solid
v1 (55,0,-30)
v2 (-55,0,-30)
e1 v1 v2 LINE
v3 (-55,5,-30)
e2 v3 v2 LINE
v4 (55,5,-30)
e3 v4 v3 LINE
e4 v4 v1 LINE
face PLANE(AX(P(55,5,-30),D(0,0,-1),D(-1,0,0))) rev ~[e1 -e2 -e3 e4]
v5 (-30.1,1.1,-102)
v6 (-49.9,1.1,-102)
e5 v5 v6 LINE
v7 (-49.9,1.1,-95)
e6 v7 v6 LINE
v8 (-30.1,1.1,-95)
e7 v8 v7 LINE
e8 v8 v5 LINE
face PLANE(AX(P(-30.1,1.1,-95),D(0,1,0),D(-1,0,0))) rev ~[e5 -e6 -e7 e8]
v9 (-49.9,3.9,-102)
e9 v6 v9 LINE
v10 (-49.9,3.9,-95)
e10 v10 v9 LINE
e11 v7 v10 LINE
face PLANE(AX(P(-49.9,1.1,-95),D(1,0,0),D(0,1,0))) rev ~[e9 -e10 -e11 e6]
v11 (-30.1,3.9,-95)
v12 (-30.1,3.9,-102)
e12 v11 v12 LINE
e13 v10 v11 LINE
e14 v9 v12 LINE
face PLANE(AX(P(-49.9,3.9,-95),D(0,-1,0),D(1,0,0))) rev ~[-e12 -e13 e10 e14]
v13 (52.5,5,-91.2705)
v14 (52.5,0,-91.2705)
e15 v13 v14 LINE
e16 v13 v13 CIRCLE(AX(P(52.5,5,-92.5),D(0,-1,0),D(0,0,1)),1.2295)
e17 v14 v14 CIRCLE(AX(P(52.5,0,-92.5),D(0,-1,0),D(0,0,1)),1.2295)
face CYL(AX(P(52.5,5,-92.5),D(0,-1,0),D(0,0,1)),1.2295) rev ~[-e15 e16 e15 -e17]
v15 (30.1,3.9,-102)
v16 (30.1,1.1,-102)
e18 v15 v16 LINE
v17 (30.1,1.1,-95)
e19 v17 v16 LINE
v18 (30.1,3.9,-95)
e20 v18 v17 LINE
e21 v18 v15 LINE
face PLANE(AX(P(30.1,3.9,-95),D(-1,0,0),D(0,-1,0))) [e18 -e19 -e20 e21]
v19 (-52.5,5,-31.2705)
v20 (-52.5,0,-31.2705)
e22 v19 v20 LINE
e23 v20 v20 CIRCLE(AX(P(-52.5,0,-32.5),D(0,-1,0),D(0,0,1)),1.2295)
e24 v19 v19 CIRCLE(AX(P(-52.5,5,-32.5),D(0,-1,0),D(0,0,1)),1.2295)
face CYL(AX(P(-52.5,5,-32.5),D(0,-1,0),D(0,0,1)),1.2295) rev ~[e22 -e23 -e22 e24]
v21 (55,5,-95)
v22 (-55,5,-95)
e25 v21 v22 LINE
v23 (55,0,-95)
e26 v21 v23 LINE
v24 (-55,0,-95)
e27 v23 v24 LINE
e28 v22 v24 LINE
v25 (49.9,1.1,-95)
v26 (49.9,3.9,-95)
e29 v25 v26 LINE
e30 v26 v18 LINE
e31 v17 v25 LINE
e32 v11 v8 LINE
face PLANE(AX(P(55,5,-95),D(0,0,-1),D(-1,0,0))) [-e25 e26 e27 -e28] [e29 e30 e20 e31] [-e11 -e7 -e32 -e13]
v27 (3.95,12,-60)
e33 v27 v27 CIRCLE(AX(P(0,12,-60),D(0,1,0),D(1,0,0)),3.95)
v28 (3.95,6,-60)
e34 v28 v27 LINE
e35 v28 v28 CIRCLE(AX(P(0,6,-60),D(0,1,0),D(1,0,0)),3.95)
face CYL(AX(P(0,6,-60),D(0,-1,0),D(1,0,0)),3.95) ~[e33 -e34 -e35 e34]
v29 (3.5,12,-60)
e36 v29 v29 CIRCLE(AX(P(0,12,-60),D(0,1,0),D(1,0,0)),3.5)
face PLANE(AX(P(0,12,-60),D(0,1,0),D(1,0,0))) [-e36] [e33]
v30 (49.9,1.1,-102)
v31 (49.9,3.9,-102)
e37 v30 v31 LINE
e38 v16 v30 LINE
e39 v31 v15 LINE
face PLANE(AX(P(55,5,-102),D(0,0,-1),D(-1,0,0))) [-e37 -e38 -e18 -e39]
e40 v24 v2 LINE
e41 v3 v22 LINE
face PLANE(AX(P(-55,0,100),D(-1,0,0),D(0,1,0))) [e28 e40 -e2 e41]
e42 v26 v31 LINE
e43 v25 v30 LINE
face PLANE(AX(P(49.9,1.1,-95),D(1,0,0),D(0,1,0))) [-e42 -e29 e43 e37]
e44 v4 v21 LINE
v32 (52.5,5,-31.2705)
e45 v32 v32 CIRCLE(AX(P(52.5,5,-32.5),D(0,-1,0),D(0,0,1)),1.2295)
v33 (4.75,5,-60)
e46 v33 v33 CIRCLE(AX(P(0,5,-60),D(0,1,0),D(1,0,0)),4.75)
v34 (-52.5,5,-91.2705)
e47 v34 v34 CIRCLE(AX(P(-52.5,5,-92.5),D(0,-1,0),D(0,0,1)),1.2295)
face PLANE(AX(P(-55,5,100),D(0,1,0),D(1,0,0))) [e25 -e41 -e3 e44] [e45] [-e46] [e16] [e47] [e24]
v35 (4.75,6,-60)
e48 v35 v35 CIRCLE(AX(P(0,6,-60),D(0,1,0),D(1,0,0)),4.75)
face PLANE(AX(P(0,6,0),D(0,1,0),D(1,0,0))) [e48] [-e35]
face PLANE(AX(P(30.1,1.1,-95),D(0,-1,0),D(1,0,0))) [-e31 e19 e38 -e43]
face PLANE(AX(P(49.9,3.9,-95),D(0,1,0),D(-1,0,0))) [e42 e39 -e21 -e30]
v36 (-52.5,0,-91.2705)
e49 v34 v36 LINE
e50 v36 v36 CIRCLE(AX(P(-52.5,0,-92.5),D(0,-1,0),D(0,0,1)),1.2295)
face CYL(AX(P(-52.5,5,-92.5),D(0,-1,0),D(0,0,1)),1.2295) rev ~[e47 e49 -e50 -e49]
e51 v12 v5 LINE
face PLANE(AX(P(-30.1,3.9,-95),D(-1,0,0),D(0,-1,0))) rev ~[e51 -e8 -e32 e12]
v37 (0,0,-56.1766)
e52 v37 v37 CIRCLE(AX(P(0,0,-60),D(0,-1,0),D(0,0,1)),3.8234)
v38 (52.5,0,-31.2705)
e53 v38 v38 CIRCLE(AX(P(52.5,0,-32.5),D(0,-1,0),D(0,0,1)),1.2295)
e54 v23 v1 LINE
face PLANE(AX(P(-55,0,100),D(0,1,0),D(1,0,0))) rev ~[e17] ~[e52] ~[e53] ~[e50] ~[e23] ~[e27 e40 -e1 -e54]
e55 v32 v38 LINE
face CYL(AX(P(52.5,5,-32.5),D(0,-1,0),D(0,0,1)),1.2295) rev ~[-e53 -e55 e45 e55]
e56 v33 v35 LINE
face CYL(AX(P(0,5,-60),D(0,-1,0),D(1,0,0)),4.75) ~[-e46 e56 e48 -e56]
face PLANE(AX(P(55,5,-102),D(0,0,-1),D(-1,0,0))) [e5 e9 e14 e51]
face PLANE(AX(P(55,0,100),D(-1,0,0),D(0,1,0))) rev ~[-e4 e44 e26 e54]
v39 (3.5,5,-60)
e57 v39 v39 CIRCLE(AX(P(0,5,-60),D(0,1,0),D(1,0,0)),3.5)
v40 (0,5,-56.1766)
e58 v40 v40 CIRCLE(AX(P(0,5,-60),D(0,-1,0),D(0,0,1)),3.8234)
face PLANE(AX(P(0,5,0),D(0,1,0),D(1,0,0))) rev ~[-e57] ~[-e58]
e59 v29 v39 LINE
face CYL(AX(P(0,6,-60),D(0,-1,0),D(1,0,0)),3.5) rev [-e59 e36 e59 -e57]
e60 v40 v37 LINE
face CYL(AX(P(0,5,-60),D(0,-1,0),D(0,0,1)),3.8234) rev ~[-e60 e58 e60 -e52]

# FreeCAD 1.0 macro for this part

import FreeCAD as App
import Part
import Sketcher
from FreeCAD import Vector
Q = App.Units.Quantity


def add_polygon(sketch, points):
    """Adds a closed chain of lines whose ends are joined by coincident constraints."""
    first, n = sketch.GeometryCount, len(points)
    for a, b in zip(points, points[1:] + points[:1]):
        sketch.addGeometry(Part.LineSegment(App.Vector(*a, 0), App.Vector(*b, 0)), False)
    for i in range(n):
        sketch.addConstraint(Sketcher.Constraint("Coincident", first + i, 2, first + (i + 1) % n, 1))

doc = App.newDocument("Part")
body = doc.addObject("PartDesign::Body", "Body")

# Sketch on XZ plane
sketch1 = doc.addObject("Sketcher::SketchObject", "Sketch")
body.addObject(sketch1)
sketch1.AttachmentSupport = (doc.XZ_Plane, [""])
sketch1.MapMode = "FlatFace"
add_polygon(sketch1, [(-55, 100), (55, 100), (55, -100), (-55, -100)])  # lines 0-3
sketch1.addConstraint(Sketcher.Constraint("Horizontal", 0))
sketch1.addConstraint(Sketcher.Constraint("Vertical", 1))
sketch1.addConstraint(Sketcher.Constraint("Horizontal", 2))
sketch1.addConstraint(Sketcher.Constraint("Vertical", 3))
sketch1.addConstraint(Sketcher.Constraint("Symmetric", 0, 2, 2, 2, -1, 1))
sketch1.addConstraint(Sketcher.Constraint("DistanceX", 0, 1, 0, 2, Q("110 mm")))
sketch1.addConstraint(Sketcher.Constraint("DistanceY", 1, 2, 1, 1, Q("200 mm")))
pad1 = doc.addObject("PartDesign::Pad", "Pad")
body.addObject(pad1)
pad1.Profile = sketch1
pad1.Length = 5
pad1.Reversed = True

# Sketch on XZ plane
sketch2 = doc.addObject("Sketcher::SketchObject", "Sketch001")
body.addObject(sketch2)
sketch2.AttachmentSupport = (doc.XZ_Plane, [""])
sketch2.MapMode = "FlatFace"
sketch2.AttachmentOffset = App.Placement(Vector(0, 0, -5), App.Rotation())
sketch2.addGeometry(Part.Circle(Vector(0, -60, 0), Vector(0, 0, 1), 3.8), False)
sketch2.addConstraint(Sketcher.Constraint("PointOnObject", 0, 3, -2))
sketch2.addConstraint(Sketcher.Constraint("DistanceY", 0, 3, -1, 1, Q("60 mm")))
sketch2.addConstraint(Sketcher.Constraint("Diameter", 0, Q("7.6468 mm")))
doc.recompute()
hole = doc.addObject("PartDesign::Hole", "Hole")
body.addObject(hole)
hole.Profile = sketch2
hole.ThreadType = "None"
hole.Diameter = 7.6468
hole.DepthType = "ThroughAll"
hole.Reversed = True

# Sketch on XZ plane
sketch3 = doc.addObject("Sketcher::SketchObject", "Sketch002")
body.addObject(sketch3)
sketch3.AttachmentSupport = (doc.XZ_Plane, [""])
sketch3.MapMode = "FlatFace"
sketch3.AttachmentOffset = App.Placement(Vector(0, 0, -5), App.Rotation())
sketch3.addGeometry(Part.Circle(Vector(-7.5, 70, 0), Vector(0, 0, 1), 1.2), False)
sketch3.addGeometry(Part.Circle(Vector(-37.5, 70, 0), Vector(0, 0, 1), 1.2), False)
sketch3.addGeometry(Part.Circle(Vector(-37.5, 55, 0), Vector(0, 0, 1), 1.2), False)
sketch3.addGeometry(Part.Circle(Vector(-7.5, 55, 0), Vector(0, 0, 1), 1.2), False)
sketch3.addConstraint(Sketcher.Constraint("Equal", 0, 1))
sketch3.addConstraint(Sketcher.Constraint("Equal", 1, 2))
sketch3.addConstraint(Sketcher.Constraint("Equal", 2, 3))
sketch3.addConstraint(Sketcher.Constraint("Horizontal", 0, 3, 1, 3))
sketch3.addConstraint(Sketcher.Constraint("Horizontal", 2, 3, 3, 3))
sketch3.addConstraint(Sketcher.Constraint("Vertical", 1, 3, 2, 3))
sketch3.addConstraint(Sketcher.Constraint("Vertical", 0, 3, 3, 3))
sketch3.addConstraint(Sketcher.Constraint("Diameter", 0, Q("2.459 mm")))
sketch3.addConstraint(Sketcher.Constraint("DistanceY", -1, 1, 0, 3, Q("70 mm")))
sketch3.addConstraint(Sketcher.Constraint("DistanceY", -1, 1, 2, 3, Q("55 mm")))
sketch3.addConstraint(Sketcher.Constraint("DistanceX", 1, 3, 0, 3, Q("30 mm")))
sketch3.addConstraint(Sketcher.Constraint("DistanceX", 0, 3, -1, 1, Q("7.5 mm")))
doc.recompute()
hole2 = doc.addObject("PartDesign::Hole", "Hole001")
body.addObject(hole2)
hole2.Profile = sketch3
hole2.ThreadType = "None"
hole2.Diameter = 2.459
hole2.DepthType = "ThroughAll"
hole2.Reversed = True

# Sketch on XY plane
sketch4 = doc.addObject("Sketcher::SketchObject", "Sketch003")
body.addObject(sketch4)
sketch4.AttachmentSupport = (doc.XY_Plane, [""])
sketch4.MapMode = "FlatFace"
sketch4.AttachmentOffset = App.Placement(Vector(0, 0, 100), App.Rotation())
add_polygon(sketch4, [(-55, 5), (-55, 0), (55, 0), (55, 5)])  # lines 0-3
sketch4.addConstraint(Sketcher.Constraint("Vertical", 0))
sketch4.addConstraint(Sketcher.Constraint("Horizontal", 1))
sketch4.addConstraint(Sketcher.Constraint("Vertical", 2))
sketch4.addConstraint(Sketcher.Constraint("Horizontal", 3))
sketch4.addConstraint(Sketcher.Constraint("Symmetric", 0, 2, 1, 2, -1, 1))
sketch4.addConstraint(Sketcher.Constraint("DistanceX", 1, 1, 1, 2, Q("110 mm")))
sketch4.addConstraint(Sketcher.Constraint("DistanceY", 0, 2, 0, 1, Q("5 mm")))
pad2 = doc.addObject("PartDesign::Pad", "Pad001")
body.addObject(pad2)
pad2.Profile = sketch4
pad2.Length = 40

# Sketch on XZ plane
sketch5 = doc.addObject("Sketcher::SketchObject", "Sketch004")
body.addObject(sketch5)
sketch5.AttachmentSupport = (doc.XZ_Plane, [""])
sketch5.MapMode = "FlatFace"
sketch5.AttachmentOffset = App.Placement(Vector(0, 0, -5), App.Rotation())
sketch5.addGeometry(Part.Circle(Vector(0, -60, 0), Vector(0, 0, 1), 4.8), False)
sketch5.addGeometry(Part.Circle(Vector(0, -60, 0), Vector(0, 0, 1), 3.5), False)
sketch5.addConstraint(Sketcher.Constraint("Coincident", 1, 3, 0, 3))
sketch5.addConstraint(Sketcher.Constraint("PointOnObject", 0, 3, -2))
sketch5.addConstraint(Sketcher.Constraint("Diameter", 1, Q("7 mm")))
sketch5.addConstraint(Sketcher.Constraint("Diameter", 0, Q("9.5 mm")))
sketch5.addConstraint(Sketcher.Constraint("DistanceY", 0, 3, -1, 1, Q("60 mm")))
pad3 = doc.addObject("PartDesign::Pad", "Pad002")
body.addObject(pad3)
pad3.Profile = sketch5
pad3.Length = 1
pad3.Reversed = True

# Sketch on XZ plane
sketch6 = doc.addObject("Sketcher::SketchObject", "Sketch005")
body.addObject(sketch6)
sketch6.AttachmentSupport = (doc.XZ_Plane, [""])
sketch6.MapMode = "FlatFace"
sketch6.AttachmentOffset = App.Placement(Vector(0, 0, -5), App.Rotation())
add_polygon(sketch6, [(55, -30), (-55, -30), (-55, 140), (55, 140)])  # lines 0-3
sketch6.addConstraint(Sketcher.Constraint("Horizontal", 0))
sketch6.addConstraint(Sketcher.Constraint("Vertical", 1))
sketch6.addConstraint(Sketcher.Constraint("Horizontal", 2))
sketch6.addConstraint(Sketcher.Constraint("Vertical", 3))
sketch6.addConstraint(Sketcher.Constraint("DistanceY", 1, 1, 1, 2, Q("170 mm")))
sketch6.addConstraint(Sketcher.Constraint("DistanceX", 0, 2, 0, 1, Q("110 mm")))
sketch6.addConstraint(Sketcher.Constraint("DistanceX", 0, 2, -1, 1, Q("55 mm")))
sketch6.addConstraint(Sketcher.Constraint("DistanceY", 0, 2, -1, 1, Q("30 mm")))
pocket1 = doc.addObject("PartDesign::Pocket", "Pocket")
body.addObject(pocket1)
pocket1.Profile = sketch6
pocket1.Length = 10
pocket1.Reversed = True

# Sketch on XZ plane
sketch7 = doc.addObject("Sketcher::SketchObject", "Sketch006")
body.addObject(sketch7)
sketch7.AttachmentSupport = (doc.XZ_Plane, [""])
sketch7.MapMode = "FlatFace"
sketch7.AttachmentOffset = App.Placement(Vector(0, 0, -5), App.Rotation())
sketch7.addGeometry(Part.Circle(Vector(-52.5, -32.5, 0), Vector(0, 0, 1), 1.2), False)
sketch7.addGeometry(Part.Circle(Vector(52.5, -32.5, 0), Vector(0, 0, 1), 1.2), False)
sketch7.addConstraint(Sketcher.Constraint("Equal", 0, 1))
sketch7.addConstraint(Sketcher.Constraint("Symmetric", 0, 3, 1, 3, -2))
sketch7.addConstraint(Sketcher.Constraint("Diameter", 0, Q("2.459 mm")))
sketch7.addConstraint(Sketcher.Constraint("DistanceX", 0, 3, 1, 3, Q("105 mm")))
sketch7.addConstraint(Sketcher.Constraint("DistanceY", 0, 3, -1, 1, Q("32.5 mm")))
doc.recompute()
hole3 = doc.addObject("PartDesign::Hole", "Hole002")
body.addObject(hole3)
hole3.Profile = sketch7
hole3.ThreadType = "None"
hole3.Diameter = 2.459
hole3.DepthType = "ThroughAll"
hole3.Reversed = True

# Sketch on XZ plane
sketch8 = doc.addObject("Sketcher::SketchObject", "Sketch007")
body.addObject(sketch8)
sketch8.AttachmentSupport = (doc.XZ_Plane, [""])
sketch8.MapMode = "FlatFace"
sketch8.AttachmentOffset = App.Placement(Vector(0, 0, -5), App.Rotation())
add_polygon(sketch8, [(55, -95), (55, -100), (-55, -100), (-55, -95)])  # lines 0-3
sketch8.addConstraint(Sketcher.Constraint("Vertical", 0))
sketch8.addConstraint(Sketcher.Constraint("Horizontal", 1))
sketch8.addConstraint(Sketcher.Constraint("Vertical", 2))
sketch8.addConstraint(Sketcher.Constraint("Horizontal", 3))
sketch8.addConstraint(Sketcher.Constraint("DistanceY", 0, 2, 0, 1, Q("5 mm")))
sketch8.addConstraint(Sketcher.Constraint("DistanceX", 1, 2, 1, 1, Q("110 mm")))
sketch8.addConstraint(Sketcher.Constraint("DistanceX", -1, 1, 0, 2, Q("55 mm")))
sketch8.addConstraint(Sketcher.Constraint("DistanceY", 0, 2, -1, 1, Q("100 mm")))
pocket2 = doc.addObject("PartDesign::Pocket", "Pocket001")
body.addObject(pocket2)
pocket2.Profile = sketch8
pocket2.Length = 10
pocket2.Reversed = True

# Sketch on XZ plane
sketch9 = doc.addObject("Sketcher::SketchObject", "Sketch008")
body.addObject(sketch9)
sketch9.AttachmentSupport = (doc.XZ_Plane, [""])
sketch9.MapMode = "FlatFace"
sketch9.AttachmentOffset = App.Placement(Vector(0, 0, -5), App.Rotation())
sketch9.addGeometry(Part.Circle(Vector(-52.5, -92.5, 0), Vector(0, 0, 1), 1.2), False)
sketch9.addGeometry(Part.Circle(Vector(52.5, -92.5, 0), Vector(0, 0, 1), 1.2), False)
sketch9.addConstraint(Sketcher.Constraint("Equal", 0, 1))
sketch9.addConstraint(Sketcher.Constraint("Symmetric", 0, 3, 1, 3, -2))
sketch9.addConstraint(Sketcher.Constraint("Diameter", 0, Q("2.459 mm")))
sketch9.addConstraint(Sketcher.Constraint("DistanceX", 0, 3, 1, 3, Q("105 mm")))
sketch9.addConstraint(Sketcher.Constraint("DistanceY", 0, 3, -1, 1, Q("92.5 mm")))
doc.recompute()
hole4 = doc.addObject("PartDesign::Hole", "Hole003")
body.addObject(hole4)
hole4.Profile = sketch9
hole4.ThreadType = "None"
hole4.Diameter = 2.459
hole4.DepthType = "ThroughAll"
hole4.Reversed = True

# Sketch on XY plane
sketch10 = doc.addObject("Sketcher::SketchObject", "Sketch009")
body.addObject(sketch10)
sketch10.AttachmentSupport = (doc.XY_Plane, [""])
sketch10.MapMode = "FlatFace"
sketch10.AttachmentOffset = App.Placement(Vector(0, 0, -95), App.Rotation())
add_polygon(sketch10, [(-49.9, 1.1), (-49.9, 3.9), (-30.1, 3.9), (-30.1, 1.1)])  # lines 0-3
add_polygon(sketch10, [(30.1, 3.9), (49.9, 3.9), (49.9, 1.1), (30.1, 1.1)])  # lines 4-7
sketch10.addConstraint(Sketcher.Constraint("Vertical", 0))
sketch10.addConstraint(Sketcher.Constraint("Horizontal", 1))
sketch10.addConstraint(Sketcher.Constraint("Vertical", 2))
sketch10.addConstraint(Sketcher.Constraint("Horizontal", 3))
sketch10.addConstraint(Sketcher.Constraint("Horizontal", 4))
sketch10.addConstraint(Sketcher.Constraint("Vertical", 5))
sketch10.addConstraint(Sketcher.Constraint("Horizontal", 6))
sketch10.addConstraint(Sketcher.Constraint("Vertical", 7))
sketch10.addConstraint(Sketcher.Constraint("Symmetric", 0, 2, 4, 2, -2))
sketch10.addConstraint(Sketcher.Constraint("Symmetric", 2, 2, 6, 2, -2))
sketch10.addConstraint(Sketcher.Constraint("DistanceX", 1, 1, 1, 2, Q("19.8 mm")))
sketch10.addConstraint(Sketcher.Constraint("DistanceY", 0, 1, 0, 2, Q("2.8 mm")))
sketch10.addConstraint(Sketcher.Constraint("DistanceY", -1, 1, 2, 2, Q("1.1 mm")))
sketch10.addConstraint(Sketcher.Constraint("DistanceX", 1, 2, 4, 2, Q("80 mm")))
pad4 = doc.addObject("PartDesign::Pad", "Pad003")
body.addObject(pad4)
pad4.Profile = sketch10
pad4.Length = 7
pad4.Reversed = True

# Sketch on XZ plane
sketch11 = doc.addObject("Sketcher::SketchObject", "Sketch010")
body.addObject(sketch11)
sketch11.AttachmentSupport = (doc.XZ_Plane, [""])
sketch11.MapMode = "FlatFace"
sketch11.AttachmentOffset = App.Placement(Vector(0, 0, -6), App.Rotation())
sketch11.addGeometry(Part.Circle(Vector(0, -60, 0), Vector(0, 0, 1), 4), False)
sketch11.addGeometry(Part.Circle(Vector(0, -60, 0), Vector(0, 0, 1), 3.5), False)
sketch11.addConstraint(Sketcher.Constraint("Coincident", 1, 3, 0, 3))
sketch11.addConstraint(Sketcher.Constraint("PointOnObject", 0, 3, -2))
sketch11.addConstraint(Sketcher.Constraint("Diameter", 1, Q("7 mm")))
sketch11.addConstraint(Sketcher.Constraint("Diameter", 0, Q("7.9 mm")))
sketch11.addConstraint(Sketcher.Constraint("DistanceY", 0, 3, -1, 1, Q("60 mm")))
pad5 = doc.addObject("PartDesign::Pad", "Pad004")
body.addObject(pad5)
pad5.Profile = sketch11
pad5.Length = 6
pad5.Reversed = True

doc.recompute()
